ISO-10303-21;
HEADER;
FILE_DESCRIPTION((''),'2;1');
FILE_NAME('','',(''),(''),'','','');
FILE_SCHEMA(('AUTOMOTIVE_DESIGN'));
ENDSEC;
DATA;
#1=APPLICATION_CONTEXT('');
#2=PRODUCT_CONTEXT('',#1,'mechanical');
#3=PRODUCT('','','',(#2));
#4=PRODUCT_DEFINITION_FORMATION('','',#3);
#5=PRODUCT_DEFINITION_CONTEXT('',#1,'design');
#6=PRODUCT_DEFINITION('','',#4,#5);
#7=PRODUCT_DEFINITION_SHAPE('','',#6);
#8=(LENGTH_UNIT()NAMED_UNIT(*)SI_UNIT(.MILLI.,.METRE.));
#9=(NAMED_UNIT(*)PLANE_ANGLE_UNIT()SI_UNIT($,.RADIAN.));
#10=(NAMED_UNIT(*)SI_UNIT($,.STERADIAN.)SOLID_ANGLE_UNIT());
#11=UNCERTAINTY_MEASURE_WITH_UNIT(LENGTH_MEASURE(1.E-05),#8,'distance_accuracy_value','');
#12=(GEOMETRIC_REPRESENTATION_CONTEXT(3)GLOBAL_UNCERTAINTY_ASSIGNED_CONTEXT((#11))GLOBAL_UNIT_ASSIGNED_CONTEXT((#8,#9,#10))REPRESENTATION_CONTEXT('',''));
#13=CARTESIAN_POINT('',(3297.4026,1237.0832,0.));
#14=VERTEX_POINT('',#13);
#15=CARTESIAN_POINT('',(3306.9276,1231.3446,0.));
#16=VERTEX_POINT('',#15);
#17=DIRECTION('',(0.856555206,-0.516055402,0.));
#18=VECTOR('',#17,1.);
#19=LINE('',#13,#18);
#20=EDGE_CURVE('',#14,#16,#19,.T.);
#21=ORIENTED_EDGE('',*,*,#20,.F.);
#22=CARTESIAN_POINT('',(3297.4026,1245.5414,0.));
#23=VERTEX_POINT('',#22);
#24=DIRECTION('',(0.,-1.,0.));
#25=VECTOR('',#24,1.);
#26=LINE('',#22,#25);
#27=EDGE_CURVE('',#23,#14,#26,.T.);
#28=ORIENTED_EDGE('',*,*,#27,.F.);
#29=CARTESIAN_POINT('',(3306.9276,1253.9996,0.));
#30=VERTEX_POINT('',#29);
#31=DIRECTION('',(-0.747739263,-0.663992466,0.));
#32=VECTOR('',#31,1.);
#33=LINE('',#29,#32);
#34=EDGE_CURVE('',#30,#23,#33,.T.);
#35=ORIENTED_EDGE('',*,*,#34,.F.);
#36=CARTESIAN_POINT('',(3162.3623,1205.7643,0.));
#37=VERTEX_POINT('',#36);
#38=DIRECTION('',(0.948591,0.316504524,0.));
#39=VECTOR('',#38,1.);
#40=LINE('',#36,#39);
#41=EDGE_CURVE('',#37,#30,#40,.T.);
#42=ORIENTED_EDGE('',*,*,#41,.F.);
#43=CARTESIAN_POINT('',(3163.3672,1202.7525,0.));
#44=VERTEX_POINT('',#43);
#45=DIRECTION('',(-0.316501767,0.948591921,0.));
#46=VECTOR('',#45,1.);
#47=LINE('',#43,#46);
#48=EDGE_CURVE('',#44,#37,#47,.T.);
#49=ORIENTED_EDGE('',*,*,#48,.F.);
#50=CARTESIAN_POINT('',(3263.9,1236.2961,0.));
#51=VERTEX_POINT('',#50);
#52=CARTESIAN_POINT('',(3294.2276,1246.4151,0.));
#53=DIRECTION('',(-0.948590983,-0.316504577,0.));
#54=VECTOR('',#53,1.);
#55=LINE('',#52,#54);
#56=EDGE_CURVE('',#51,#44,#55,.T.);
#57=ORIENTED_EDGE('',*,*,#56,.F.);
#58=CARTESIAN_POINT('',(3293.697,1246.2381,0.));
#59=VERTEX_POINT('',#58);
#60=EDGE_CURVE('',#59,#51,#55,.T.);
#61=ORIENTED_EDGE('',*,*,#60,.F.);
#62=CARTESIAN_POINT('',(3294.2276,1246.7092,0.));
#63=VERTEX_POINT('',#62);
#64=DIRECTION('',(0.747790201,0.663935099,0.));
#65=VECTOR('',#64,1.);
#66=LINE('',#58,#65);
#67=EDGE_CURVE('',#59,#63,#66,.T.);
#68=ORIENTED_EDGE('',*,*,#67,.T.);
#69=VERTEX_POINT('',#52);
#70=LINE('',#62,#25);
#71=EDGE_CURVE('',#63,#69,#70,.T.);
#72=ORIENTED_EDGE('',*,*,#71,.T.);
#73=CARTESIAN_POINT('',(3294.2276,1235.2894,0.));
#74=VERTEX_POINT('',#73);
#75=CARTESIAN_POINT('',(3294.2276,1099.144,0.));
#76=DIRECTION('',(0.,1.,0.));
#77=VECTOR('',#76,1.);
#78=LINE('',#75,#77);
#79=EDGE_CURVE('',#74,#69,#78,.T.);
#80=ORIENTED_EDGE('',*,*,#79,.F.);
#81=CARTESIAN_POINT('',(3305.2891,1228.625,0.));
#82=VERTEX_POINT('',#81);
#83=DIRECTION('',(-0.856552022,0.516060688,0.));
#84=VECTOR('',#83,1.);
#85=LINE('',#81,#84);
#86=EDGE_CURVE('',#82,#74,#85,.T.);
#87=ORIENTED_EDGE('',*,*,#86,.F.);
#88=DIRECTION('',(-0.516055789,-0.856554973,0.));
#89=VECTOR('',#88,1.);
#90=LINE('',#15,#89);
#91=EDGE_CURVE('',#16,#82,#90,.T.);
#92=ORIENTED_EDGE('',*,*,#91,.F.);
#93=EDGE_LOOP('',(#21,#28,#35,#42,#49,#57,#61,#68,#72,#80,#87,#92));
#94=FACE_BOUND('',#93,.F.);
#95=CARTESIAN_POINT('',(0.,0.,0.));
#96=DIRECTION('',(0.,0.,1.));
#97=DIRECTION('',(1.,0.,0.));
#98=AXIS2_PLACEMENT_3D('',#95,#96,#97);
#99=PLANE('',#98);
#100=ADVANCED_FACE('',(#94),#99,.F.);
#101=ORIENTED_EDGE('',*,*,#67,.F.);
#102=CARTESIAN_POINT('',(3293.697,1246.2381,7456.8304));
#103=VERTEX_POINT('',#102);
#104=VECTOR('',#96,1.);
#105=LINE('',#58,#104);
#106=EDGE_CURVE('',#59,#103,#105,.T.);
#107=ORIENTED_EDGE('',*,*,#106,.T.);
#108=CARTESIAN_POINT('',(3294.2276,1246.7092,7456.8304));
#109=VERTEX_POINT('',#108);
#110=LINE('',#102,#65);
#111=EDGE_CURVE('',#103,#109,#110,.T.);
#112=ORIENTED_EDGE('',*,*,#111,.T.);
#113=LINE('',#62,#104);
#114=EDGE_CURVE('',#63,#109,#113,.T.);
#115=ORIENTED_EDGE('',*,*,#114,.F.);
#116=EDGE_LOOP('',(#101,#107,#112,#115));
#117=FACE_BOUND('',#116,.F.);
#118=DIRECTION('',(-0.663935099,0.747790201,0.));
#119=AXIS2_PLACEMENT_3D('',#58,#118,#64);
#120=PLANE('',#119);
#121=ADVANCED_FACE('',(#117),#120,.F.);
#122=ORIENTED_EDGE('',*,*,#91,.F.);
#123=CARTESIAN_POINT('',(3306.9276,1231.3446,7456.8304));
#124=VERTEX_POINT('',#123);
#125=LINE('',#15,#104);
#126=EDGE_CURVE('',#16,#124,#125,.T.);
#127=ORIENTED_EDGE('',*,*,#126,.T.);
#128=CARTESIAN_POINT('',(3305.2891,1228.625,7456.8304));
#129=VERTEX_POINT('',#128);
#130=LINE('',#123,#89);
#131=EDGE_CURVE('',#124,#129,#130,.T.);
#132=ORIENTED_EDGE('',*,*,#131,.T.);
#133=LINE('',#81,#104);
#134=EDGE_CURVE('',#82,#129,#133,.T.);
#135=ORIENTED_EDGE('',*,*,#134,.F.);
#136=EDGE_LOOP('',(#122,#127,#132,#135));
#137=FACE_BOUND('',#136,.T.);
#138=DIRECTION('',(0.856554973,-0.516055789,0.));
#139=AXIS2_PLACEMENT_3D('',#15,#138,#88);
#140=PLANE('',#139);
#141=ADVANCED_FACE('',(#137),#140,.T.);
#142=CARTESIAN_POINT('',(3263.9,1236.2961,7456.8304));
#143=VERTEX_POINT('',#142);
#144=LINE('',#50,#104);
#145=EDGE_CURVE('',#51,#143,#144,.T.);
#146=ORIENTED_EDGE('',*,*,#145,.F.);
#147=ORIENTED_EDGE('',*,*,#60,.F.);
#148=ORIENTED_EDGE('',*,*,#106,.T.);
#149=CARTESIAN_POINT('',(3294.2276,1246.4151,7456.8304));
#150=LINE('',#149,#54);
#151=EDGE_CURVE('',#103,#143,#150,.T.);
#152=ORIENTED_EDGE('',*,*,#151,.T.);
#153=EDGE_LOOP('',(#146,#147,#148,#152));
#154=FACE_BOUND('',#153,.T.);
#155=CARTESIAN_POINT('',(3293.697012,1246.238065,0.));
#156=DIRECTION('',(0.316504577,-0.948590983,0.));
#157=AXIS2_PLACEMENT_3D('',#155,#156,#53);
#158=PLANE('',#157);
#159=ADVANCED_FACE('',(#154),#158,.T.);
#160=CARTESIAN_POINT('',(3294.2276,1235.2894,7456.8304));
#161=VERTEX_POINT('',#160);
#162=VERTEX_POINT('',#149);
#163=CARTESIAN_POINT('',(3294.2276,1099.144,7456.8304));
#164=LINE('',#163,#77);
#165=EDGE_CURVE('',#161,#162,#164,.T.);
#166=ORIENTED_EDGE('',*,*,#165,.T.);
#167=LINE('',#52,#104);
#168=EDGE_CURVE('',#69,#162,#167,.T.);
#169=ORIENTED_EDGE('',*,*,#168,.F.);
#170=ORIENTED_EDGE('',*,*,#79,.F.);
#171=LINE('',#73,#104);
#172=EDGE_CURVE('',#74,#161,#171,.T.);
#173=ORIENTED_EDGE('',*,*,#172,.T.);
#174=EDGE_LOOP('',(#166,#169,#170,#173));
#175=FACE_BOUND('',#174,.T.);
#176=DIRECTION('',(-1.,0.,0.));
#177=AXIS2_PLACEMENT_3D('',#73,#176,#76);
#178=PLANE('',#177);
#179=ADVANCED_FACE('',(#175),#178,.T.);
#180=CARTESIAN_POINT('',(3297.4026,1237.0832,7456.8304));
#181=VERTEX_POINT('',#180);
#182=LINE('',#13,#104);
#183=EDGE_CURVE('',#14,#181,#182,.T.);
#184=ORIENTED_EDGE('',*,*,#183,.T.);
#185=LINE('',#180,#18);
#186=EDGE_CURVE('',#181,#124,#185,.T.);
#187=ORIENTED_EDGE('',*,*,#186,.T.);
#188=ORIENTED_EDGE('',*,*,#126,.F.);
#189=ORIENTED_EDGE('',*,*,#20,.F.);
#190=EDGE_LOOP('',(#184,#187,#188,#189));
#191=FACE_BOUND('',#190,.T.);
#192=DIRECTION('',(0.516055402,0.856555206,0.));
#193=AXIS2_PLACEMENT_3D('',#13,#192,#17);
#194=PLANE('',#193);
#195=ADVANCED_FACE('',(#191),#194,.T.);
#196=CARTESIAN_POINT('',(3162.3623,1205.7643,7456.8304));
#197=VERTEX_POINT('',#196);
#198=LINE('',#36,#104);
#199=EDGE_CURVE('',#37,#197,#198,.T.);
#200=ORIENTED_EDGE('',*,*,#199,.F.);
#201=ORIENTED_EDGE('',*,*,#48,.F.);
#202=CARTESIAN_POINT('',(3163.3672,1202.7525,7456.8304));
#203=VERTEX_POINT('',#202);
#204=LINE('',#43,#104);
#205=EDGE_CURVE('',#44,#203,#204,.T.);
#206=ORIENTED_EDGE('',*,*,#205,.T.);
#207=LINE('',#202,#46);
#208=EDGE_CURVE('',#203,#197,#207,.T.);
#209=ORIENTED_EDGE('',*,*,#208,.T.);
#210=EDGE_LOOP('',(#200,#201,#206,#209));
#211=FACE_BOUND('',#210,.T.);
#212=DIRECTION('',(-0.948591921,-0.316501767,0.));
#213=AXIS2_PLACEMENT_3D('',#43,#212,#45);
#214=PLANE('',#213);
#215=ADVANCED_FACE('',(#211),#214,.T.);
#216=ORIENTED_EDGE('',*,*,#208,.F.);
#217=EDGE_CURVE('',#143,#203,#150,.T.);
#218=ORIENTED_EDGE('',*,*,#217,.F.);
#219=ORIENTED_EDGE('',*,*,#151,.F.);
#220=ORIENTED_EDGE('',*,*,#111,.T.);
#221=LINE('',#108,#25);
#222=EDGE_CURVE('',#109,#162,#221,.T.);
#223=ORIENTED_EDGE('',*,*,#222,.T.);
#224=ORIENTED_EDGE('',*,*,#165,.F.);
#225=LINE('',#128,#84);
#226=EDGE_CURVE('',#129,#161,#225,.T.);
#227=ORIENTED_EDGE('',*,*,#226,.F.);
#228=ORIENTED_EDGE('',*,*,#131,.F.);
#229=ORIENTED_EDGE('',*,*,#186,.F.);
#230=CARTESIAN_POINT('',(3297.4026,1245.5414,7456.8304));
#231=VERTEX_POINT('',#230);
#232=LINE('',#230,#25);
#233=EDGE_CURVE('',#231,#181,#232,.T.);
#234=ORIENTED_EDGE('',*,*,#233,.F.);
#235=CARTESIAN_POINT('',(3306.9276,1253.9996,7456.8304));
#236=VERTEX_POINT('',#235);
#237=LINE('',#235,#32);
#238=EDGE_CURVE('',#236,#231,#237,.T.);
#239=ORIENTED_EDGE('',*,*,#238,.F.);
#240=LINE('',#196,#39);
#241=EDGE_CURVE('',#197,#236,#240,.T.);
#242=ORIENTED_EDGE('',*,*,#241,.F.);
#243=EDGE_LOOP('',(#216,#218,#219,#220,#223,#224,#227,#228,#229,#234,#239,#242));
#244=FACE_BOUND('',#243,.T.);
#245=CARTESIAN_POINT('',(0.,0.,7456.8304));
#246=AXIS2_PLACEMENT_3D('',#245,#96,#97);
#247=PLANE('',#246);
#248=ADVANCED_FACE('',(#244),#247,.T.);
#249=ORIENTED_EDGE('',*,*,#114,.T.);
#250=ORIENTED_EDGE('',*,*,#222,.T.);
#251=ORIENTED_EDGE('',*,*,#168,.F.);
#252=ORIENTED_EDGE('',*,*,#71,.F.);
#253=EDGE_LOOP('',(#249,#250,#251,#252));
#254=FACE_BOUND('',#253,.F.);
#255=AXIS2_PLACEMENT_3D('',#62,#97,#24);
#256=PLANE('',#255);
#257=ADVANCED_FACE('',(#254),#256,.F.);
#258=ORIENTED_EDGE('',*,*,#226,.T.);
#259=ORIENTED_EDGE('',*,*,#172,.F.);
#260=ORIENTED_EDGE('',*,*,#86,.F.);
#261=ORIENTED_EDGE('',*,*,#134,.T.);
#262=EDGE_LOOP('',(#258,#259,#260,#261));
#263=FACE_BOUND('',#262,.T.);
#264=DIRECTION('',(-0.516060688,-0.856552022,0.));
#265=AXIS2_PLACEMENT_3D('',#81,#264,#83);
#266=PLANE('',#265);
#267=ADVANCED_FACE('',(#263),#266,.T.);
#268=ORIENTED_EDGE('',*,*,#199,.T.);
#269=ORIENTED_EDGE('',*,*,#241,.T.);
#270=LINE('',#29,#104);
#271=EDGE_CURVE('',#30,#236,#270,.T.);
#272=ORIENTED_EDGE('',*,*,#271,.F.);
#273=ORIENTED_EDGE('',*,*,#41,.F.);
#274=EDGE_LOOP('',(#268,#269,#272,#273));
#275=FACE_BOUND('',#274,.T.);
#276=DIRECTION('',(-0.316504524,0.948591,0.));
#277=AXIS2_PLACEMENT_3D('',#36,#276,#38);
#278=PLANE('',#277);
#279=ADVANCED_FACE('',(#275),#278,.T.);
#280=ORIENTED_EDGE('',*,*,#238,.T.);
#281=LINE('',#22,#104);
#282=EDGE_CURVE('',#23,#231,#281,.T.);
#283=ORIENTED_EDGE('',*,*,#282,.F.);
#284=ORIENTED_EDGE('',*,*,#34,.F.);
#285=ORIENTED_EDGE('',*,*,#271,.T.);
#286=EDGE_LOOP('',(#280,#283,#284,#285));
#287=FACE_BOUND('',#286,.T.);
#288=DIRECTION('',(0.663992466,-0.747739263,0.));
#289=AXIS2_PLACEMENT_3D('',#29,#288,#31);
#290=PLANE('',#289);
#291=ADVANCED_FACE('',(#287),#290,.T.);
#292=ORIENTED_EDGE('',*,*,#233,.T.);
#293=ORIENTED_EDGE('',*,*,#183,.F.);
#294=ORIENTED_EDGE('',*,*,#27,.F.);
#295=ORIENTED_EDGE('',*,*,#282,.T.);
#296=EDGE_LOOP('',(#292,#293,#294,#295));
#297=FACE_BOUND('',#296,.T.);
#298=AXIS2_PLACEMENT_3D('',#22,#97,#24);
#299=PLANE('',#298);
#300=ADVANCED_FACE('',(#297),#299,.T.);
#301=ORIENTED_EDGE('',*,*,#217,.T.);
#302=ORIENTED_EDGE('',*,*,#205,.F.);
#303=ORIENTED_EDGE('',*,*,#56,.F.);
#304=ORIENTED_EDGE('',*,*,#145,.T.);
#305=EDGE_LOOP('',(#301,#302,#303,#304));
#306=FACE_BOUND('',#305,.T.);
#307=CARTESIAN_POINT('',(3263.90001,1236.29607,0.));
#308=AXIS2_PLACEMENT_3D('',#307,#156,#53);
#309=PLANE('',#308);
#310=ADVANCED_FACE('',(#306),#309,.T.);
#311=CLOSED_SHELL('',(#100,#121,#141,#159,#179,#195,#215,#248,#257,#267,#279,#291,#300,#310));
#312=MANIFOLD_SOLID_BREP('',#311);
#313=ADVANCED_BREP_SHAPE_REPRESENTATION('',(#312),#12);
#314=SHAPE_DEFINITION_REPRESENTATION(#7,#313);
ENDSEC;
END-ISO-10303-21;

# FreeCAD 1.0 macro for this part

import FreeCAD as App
import Part
import Sketcher
from FreeCAD import Vector
Q = App.Units.Quantity

doc = App.newDocument("Part")
body = doc.addObject("PartDesign::Body", "Body")

# Sketch on XY plane
sketch1 = body.newObject("Sketcher::SketchObject", "Sketch")
sketch1.AttachmentSupport = (doc.getObject("XY_Plane"), [""])
sketch1.MapMode = "FlatFace"
sketch1.addGeometry([
    Part.LineSegment(Vector(3294.2, 1246.7, 0), Vector(3294.2, 1235.3, 0)),  # 0
    Part.LineSegment(Vector(3294.2, 1235.3, 0), Vector(3305.3, 1228.6, 0)),  # 1
    Part.LineSegment(Vector(3305.3, 1228.6, 0), Vector(3306.9, 1231.3, 0)),  # 2
    Part.LineSegment(Vector(3306.9, 1231.3, 0), Vector(3297.4, 1237.1, 0)),  # 3
    Part.LineSegment(Vector(3297.4, 1237.1, 0), Vector(3297.4, 1245.5, 0)),  # 4
    Part.LineSegment(Vector(3297.4, 1245.5, 0), Vector(3306.9, 1254, 0)),  # 5
    Part.LineSegment(Vector(3306.9, 1254, 0), Vector(3162.4, 1205.8, 0)),  # 6
    Part.LineSegment(Vector(3162.4, 1205.8, 0), Vector(3163.4, 1202.8, 0)),  # 7
    Part.LineSegment(Vector(3163.4, 1202.8, 0), Vector(3293.7, 1246.2, 0)),  # 8
    Part.LineSegment(Vector(3293.7, 1246.2, 0), Vector(3294.2, 1246.7, 0)),  # 9
], False)
sketch1.addConstraint([
    Sketcher.Constraint("Coincident", 0, 2, 1, 1),
    Sketcher.Constraint("Coincident", 1, 2, 2, 1),
    Sketcher.Constraint("Coincident", 2, 2, 3, 1),
    Sketcher.Constraint("Coincident", 3, 2, 4, 1),
    Sketcher.Constraint("Coincident", 4, 2, 5, 1),
    Sketcher.Constraint("Coincident", 5, 2, 6, 1),
    Sketcher.Constraint("Coincident", 6, 2, 7, 1),
    Sketcher.Constraint("Coincident", 7, 2, 8, 1),
    Sketcher.Constraint("Coincident", 8, 2, 9, 1),
    Sketcher.Constraint("Coincident", 9, 2, 0, 1),
    Sketcher.Constraint("Vertical", 0),
    Sketcher.Constraint("Vertical", 4),
    Sketcher.Constraint("Perpendicular", 1, 2),
    Sketcher.Constraint("Perpendicular", 2, 3),
    Sketcher.Constraint("Perpendicular", 6, 7),
    Sketcher.Constraint("Perpendicular", 7, 8),
    Sketcher.Constraint("Parallel", 5, 9),
    Sketcher.Constraint("Vertical", 2, 2, 5, 2),
    Sketcher.Constraint("Equal", 2, 7),
    Sketcher.Constraint("Distance", 6, Q("6 in")),
    Sketcher.Constraint("DistanceX", 0, 2, 2, 2, Q("0.5 in")),
    Sketcher.Constraint("DistanceY", 4, 1, 4, 2, Q("0.333 in")),
    Sketcher.Constraint("Distance", 2, Q("0.125 in")),
    Sketcher.Constraint("DistanceX", 0, 2, 3, 2, Q("0.125 in")),
    Sketcher.Constraint("DistanceY", 1, 2, 3, 2, Q("0.333 in")),
    Sketcher.Constraint("DistanceY", 4, 2, 5, 2, Q("0.333 in")),
    Sketcher.Constraint("DistanceY", 0, 2, 0, 1, Q("0.4496 in")),
    Sketcher.Constraint("DistanceX", -1, 1, 0, 2, Q("129.694 in")),
    Sketcher.Constraint("DistanceX", -1, 1, 8, 2, Q("129.6731 in")),
    Sketcher.Constraint("DistanceY", -1, 1, 8, 2, Q("49.0645 in")),
])
pad1 = body.newObject("PartDesign::Pad", "Pad")
pad1.Profile = sketch1
pad1.Length = Q("293.576 in")

doc.recompute()
